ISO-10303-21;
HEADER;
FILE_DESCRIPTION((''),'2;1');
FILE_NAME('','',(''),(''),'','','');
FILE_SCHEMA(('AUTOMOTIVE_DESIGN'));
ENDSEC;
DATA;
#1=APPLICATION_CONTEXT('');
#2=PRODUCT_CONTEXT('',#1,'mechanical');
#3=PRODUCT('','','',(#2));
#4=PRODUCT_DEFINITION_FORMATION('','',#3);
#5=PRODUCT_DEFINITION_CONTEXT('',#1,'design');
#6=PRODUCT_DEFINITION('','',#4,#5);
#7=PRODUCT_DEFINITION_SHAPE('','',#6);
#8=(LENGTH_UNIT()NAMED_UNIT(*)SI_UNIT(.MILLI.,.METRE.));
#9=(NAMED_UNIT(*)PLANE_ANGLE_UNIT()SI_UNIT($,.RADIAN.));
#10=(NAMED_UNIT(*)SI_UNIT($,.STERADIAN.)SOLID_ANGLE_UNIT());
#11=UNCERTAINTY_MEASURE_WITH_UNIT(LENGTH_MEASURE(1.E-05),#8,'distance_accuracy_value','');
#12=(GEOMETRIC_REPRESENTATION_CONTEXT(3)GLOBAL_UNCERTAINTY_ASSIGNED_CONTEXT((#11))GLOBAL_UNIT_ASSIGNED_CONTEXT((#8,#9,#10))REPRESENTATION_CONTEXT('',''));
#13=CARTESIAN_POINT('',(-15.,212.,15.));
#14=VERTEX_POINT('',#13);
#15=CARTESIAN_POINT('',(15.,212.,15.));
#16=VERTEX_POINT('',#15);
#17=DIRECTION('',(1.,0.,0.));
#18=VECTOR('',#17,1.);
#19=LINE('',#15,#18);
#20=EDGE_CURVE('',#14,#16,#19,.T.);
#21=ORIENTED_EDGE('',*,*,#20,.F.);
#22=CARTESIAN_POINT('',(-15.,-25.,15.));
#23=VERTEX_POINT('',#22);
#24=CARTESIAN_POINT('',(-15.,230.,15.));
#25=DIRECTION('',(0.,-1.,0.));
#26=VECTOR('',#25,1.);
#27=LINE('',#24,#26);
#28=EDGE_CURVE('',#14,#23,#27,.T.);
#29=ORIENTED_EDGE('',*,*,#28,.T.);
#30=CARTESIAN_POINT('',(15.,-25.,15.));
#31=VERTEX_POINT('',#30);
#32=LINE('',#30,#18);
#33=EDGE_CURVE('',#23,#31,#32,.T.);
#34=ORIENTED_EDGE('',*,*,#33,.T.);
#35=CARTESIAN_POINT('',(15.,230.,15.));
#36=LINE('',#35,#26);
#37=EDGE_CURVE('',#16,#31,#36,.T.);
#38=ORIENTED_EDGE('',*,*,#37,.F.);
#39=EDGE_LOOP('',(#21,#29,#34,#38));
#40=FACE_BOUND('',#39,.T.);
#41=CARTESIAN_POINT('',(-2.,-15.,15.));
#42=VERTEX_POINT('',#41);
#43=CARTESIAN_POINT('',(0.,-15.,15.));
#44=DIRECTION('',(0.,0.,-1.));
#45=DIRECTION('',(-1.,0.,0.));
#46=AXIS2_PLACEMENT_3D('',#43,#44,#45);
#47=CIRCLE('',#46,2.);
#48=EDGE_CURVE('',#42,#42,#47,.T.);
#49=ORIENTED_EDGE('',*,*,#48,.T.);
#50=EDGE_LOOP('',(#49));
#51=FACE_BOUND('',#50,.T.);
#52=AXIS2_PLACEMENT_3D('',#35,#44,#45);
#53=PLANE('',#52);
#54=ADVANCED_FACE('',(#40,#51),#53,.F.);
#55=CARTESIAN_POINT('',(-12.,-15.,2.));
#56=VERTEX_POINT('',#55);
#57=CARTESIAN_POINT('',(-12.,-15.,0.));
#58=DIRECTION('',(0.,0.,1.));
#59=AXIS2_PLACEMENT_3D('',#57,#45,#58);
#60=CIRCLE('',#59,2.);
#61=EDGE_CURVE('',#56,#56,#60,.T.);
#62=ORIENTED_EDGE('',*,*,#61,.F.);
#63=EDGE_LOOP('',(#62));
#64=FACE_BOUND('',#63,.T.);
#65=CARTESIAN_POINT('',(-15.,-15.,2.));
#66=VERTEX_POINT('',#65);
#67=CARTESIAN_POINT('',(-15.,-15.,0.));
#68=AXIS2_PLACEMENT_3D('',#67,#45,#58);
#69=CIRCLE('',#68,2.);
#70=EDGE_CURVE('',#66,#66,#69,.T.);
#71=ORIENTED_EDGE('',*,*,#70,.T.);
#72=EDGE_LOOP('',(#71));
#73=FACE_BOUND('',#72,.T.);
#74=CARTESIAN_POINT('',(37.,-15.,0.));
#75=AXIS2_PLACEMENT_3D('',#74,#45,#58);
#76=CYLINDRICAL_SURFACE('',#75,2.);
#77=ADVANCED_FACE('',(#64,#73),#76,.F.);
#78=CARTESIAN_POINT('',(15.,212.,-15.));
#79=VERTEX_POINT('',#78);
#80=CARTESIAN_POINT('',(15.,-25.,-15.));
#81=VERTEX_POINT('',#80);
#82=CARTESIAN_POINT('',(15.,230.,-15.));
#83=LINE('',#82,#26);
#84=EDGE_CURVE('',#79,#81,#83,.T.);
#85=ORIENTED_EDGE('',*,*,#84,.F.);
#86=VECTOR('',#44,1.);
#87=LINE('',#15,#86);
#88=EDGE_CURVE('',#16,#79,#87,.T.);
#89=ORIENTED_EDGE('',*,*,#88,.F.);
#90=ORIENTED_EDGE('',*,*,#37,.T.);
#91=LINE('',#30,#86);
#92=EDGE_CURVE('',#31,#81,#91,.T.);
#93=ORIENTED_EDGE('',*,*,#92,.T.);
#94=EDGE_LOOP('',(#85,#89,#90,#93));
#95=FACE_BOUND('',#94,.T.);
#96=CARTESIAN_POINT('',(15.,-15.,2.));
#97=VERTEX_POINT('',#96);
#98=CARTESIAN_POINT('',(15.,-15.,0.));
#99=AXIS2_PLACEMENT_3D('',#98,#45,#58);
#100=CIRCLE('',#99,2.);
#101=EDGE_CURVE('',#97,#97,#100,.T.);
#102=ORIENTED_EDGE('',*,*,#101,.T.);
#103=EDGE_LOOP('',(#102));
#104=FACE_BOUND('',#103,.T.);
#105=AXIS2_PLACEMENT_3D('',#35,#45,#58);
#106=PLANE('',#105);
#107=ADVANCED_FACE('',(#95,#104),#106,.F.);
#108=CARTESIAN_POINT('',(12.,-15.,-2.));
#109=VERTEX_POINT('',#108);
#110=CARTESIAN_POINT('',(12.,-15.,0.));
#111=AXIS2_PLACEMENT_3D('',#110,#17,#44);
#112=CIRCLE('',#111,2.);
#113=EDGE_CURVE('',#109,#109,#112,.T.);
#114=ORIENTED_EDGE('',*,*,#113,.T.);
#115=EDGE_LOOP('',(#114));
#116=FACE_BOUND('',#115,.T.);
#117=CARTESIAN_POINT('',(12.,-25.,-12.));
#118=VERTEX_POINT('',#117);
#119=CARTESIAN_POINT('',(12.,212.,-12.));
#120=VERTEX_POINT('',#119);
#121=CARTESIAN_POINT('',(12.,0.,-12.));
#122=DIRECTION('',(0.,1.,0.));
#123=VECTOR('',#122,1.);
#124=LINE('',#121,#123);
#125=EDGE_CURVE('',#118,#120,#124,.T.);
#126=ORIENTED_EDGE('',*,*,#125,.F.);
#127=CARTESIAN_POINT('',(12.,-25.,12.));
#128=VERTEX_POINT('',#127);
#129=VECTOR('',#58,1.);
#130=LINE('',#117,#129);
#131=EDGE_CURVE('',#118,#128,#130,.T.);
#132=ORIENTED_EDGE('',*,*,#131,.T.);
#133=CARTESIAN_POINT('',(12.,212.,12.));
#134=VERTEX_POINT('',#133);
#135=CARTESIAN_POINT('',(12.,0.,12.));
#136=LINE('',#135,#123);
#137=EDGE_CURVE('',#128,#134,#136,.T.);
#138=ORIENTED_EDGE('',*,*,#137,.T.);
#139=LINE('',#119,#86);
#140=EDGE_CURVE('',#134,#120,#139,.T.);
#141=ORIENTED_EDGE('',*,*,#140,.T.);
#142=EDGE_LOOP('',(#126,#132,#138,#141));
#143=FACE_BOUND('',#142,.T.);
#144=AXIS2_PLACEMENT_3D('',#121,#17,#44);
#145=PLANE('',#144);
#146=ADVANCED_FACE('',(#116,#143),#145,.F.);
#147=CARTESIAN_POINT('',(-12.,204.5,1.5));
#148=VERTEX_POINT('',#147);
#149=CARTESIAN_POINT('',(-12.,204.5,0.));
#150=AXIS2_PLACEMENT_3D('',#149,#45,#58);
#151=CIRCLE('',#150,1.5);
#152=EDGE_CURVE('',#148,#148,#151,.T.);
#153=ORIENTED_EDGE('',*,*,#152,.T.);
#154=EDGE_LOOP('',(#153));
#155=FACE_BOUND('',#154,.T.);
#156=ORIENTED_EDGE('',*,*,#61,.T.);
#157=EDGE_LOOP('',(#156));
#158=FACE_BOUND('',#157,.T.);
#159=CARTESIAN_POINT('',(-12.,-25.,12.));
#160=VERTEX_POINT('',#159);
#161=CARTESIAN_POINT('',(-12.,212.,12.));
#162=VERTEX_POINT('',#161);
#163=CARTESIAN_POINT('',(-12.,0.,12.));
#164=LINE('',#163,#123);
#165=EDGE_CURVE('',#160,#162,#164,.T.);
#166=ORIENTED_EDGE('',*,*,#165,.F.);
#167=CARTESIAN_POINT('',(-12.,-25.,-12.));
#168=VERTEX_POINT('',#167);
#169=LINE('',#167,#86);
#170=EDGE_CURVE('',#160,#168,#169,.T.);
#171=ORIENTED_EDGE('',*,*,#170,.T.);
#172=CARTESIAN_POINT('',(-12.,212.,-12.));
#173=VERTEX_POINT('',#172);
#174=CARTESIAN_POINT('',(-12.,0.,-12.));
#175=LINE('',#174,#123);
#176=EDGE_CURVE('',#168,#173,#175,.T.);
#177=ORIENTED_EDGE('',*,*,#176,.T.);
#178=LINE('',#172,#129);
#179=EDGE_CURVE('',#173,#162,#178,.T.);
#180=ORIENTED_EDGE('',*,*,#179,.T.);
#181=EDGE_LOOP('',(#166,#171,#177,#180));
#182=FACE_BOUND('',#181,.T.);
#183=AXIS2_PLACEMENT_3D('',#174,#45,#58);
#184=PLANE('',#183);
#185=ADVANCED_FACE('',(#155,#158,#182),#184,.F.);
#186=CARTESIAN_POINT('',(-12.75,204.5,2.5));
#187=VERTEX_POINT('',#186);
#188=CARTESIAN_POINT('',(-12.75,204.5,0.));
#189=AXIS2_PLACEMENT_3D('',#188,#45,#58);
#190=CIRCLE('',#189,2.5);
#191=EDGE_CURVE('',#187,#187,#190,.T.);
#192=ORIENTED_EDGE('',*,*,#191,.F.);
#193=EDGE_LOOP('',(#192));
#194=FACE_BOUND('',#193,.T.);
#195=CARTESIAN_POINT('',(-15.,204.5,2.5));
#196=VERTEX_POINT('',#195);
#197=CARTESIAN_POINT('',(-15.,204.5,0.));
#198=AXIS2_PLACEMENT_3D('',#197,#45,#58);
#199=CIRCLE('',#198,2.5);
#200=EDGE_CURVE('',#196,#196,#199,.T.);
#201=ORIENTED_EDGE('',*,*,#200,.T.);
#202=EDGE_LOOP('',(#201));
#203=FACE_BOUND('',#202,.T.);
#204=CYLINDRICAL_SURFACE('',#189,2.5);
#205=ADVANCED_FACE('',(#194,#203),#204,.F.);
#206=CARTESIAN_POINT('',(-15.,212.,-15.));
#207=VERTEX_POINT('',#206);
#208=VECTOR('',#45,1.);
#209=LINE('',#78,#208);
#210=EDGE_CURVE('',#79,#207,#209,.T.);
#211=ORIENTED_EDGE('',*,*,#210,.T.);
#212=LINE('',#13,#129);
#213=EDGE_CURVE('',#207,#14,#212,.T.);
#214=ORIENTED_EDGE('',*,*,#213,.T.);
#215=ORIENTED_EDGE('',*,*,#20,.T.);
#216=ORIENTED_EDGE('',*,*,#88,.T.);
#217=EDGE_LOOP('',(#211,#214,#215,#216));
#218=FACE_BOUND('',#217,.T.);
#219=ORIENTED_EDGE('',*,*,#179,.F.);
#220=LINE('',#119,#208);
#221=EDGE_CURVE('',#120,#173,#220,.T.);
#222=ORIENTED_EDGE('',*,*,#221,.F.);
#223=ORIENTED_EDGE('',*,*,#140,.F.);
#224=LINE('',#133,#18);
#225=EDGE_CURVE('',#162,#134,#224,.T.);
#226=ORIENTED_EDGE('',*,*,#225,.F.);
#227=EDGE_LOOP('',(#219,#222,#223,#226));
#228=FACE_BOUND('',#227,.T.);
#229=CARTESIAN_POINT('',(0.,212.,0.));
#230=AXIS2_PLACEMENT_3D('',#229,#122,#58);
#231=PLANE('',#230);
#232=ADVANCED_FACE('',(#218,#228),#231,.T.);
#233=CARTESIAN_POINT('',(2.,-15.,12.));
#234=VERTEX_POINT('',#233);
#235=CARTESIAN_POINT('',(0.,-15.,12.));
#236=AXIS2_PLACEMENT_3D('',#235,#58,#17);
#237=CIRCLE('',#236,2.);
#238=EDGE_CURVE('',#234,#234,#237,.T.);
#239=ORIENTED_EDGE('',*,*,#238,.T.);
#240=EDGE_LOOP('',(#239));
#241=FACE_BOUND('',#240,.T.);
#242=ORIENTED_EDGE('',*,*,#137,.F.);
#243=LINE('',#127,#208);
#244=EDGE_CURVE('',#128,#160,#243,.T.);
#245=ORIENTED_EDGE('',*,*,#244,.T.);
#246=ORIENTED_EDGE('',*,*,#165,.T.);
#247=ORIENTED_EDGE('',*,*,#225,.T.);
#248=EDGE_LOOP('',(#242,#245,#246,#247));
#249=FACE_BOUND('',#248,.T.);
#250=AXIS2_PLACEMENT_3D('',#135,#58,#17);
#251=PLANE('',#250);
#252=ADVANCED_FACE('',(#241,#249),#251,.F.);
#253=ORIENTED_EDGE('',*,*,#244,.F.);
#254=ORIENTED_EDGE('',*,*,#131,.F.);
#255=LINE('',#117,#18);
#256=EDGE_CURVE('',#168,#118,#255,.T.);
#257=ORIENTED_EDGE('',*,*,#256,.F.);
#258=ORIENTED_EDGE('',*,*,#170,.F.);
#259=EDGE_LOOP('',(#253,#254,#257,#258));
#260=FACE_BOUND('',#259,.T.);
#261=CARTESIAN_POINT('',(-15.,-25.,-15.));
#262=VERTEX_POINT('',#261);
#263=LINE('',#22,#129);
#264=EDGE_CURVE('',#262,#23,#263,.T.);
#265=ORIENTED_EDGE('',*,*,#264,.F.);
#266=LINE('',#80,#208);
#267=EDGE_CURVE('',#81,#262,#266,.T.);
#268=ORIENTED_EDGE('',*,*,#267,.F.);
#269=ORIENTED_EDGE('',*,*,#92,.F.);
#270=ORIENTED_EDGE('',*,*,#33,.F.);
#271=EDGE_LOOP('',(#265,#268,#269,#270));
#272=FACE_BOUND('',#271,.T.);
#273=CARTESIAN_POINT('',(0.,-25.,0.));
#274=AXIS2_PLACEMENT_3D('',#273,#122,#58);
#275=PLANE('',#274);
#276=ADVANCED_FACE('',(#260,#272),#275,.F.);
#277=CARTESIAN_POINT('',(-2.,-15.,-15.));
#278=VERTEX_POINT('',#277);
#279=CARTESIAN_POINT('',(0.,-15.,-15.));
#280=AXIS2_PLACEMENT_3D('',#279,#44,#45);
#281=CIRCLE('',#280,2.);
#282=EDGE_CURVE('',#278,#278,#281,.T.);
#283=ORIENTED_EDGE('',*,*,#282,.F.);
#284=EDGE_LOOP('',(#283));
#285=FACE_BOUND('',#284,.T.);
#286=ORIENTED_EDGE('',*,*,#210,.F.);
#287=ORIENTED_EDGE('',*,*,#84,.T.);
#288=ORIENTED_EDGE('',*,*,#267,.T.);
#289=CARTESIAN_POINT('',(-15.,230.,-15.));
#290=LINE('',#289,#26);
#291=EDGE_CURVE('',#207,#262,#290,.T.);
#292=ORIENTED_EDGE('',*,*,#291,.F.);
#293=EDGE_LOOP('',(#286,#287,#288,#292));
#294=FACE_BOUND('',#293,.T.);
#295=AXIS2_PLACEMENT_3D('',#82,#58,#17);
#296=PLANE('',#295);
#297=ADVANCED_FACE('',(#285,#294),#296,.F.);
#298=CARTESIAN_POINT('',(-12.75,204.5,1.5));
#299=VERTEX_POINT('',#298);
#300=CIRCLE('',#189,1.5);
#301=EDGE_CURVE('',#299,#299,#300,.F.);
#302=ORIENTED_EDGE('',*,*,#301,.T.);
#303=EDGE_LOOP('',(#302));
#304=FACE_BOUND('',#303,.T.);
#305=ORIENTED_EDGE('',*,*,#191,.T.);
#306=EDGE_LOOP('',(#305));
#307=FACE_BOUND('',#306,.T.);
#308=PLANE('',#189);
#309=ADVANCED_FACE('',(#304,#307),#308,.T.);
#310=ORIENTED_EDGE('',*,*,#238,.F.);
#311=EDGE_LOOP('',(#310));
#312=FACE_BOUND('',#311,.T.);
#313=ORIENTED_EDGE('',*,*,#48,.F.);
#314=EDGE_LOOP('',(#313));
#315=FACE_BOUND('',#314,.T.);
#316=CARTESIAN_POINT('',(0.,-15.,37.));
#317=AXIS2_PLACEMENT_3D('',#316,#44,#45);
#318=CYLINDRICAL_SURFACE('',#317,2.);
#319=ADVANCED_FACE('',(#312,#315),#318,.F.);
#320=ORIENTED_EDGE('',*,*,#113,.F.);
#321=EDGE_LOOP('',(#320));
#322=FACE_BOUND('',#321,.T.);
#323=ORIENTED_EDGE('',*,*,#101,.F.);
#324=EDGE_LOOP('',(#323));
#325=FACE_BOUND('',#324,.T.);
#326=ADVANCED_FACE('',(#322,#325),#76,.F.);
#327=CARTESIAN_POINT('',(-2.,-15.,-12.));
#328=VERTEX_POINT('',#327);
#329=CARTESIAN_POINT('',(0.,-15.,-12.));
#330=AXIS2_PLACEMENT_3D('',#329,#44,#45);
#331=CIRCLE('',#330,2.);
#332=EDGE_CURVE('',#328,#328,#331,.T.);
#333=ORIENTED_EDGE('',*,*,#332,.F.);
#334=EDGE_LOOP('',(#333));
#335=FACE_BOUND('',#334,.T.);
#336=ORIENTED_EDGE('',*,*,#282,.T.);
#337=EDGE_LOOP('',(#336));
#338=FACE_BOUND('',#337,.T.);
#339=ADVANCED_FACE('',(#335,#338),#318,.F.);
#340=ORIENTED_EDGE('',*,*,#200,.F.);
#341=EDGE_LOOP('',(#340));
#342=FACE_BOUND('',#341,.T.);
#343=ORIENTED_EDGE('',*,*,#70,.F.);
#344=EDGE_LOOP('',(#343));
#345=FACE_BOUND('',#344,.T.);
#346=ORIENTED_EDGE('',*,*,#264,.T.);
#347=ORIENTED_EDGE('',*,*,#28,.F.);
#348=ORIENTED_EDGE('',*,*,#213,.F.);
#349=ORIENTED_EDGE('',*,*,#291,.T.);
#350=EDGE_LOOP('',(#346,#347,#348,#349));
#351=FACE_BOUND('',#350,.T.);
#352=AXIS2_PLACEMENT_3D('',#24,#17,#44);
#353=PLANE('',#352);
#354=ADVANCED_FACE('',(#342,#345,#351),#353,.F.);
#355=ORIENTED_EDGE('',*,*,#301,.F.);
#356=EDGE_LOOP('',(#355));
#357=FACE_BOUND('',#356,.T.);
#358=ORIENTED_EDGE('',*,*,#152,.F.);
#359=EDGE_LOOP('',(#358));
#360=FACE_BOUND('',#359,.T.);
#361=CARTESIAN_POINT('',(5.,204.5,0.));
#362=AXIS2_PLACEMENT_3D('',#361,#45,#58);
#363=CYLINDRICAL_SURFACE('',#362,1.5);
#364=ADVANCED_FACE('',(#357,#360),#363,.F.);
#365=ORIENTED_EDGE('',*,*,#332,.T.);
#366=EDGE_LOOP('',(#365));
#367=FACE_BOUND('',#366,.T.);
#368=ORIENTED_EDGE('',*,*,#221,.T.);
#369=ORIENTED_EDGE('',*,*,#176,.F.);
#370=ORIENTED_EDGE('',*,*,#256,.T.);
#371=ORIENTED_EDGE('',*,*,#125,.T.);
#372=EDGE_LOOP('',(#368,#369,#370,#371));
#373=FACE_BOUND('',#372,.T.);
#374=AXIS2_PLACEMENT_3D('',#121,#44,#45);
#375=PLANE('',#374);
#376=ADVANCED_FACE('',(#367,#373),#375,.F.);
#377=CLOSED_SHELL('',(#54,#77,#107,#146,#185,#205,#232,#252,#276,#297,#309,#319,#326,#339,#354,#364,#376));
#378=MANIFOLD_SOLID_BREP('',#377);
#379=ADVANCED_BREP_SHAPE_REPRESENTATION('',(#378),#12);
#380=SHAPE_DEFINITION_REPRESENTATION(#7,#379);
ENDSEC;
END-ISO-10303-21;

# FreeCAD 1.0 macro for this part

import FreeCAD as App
import Part
import Sketcher
from FreeCAD import Vector
Q = App.Units.Quantity

doc = App.newDocument("Part")
params = doc.addObject("Spreadsheet::Sheet", "Params")
for row, (alias, value) in enumerate([
    ("sketch1_width", "30 mm"),
    ("sketch1_width2", "26 mm"),
    ("pad1_length", "230 mm"),
    ("pocket1_length", "28 mm"),
    ("sketch3_diameter", "4 mm"),
    ("pocket2_length", "15 mm"),
    ("sketch4_diameter", "4 mm"),
    ("pocket3_length", "15 mm"),
    ("sketch5_width", "30 mm"),
    ("sketch5_width2", "26 mm"),
    ("pad2_length", "12 mm"),
    ("pad3_length", "2 mm"),
    ("pad4_length", "2 mm"),
    ("sketch8_diameter", "4 mm"),
    ("pocket4_length", "2 mm"),
    ("sketch9_diameter", "4 mm"),
    ("pocket5_length", "2 mm"),
    ("pocket6_length", "2 mm"),
    ("sketch11_diameter", "4 mm"),
    ("pad5_length", "2 mm"),
    ("sketch12_diameter", "4 mm"),
    ("pad6_length", "2 mm"),
    ("sketch13_diameter", "3 mm"),
    ("pocket7_length", "20 mm"),
    ("sketch14_width", "26 mm"),
    ("sketch14_width2", "24 mm"),
    ("pad7_length", "212 mm"),
    ("sketch15_diameter", "3 mm"),
    ("pocket8_length", "6 mm"),
    ("sketch16_diameter", "5 mm"),
    ("pocket9_length", "2.25 mm"),
    ("sketch17_width", "30 mm"),
    ("sketch17_width2", "24 mm"),
    ("pad8_length", "30 mm"),
    ("sketch18_diameter", "4 mm"),
    ("pad9_length", "2 mm"),
    ("sketch19_diameter", "4 mm"),
    ("pad10_length", "2 mm"),
    ("sketch20_diameter", "4 mm"),
    ("pocket10_length", "52 mm"),
    ("sketch21_diameter", "4 mm"),
    ("pocket11_length", "52 mm"),
    ("pocket12_length", "5 mm"),
], start=1):
    params.set(f"A{row}", alias)
    params.set(f"B{row}", "=" + value)
    params.setAlias(f"B{row}", alias)

body = doc.addObject("PartDesign::Body", "Body")

# Sketch on XZ plane
sketch1 = body.newObject("Sketcher::SketchObject", "Sketch")
sketch1.AttachmentSupport = (doc.getObject("XZ_Plane"), [""])
sketch1.MapMode = "FlatFace"
sketch1.addGeometry([
    Part.LineSegment(Vector(-15, -15, 0), Vector(-15, 15, 0)),  # 0
    Part.LineSegment(Vector(-15, 15, 0), Vector(15, 15, 0)),  # 1
    Part.LineSegment(Vector(15, 15, 0), Vector(15, -15, 0)),  # 2
    Part.LineSegment(Vector(15, -15, 0), Vector(-15, -15, 0)),  # 3
    Part.LineSegment(Vector(13, 13, 0), Vector(-13, 13, 0)),  # 4
    Part.LineSegment(Vector(-13, 13, 0), Vector(-13, -13, 0)),  # 5
    Part.LineSegment(Vector(-13, -13, 0), Vector(13, -13, 0)),  # 6
    Part.LineSegment(Vector(13, -13, 0), Vector(13, 13, 0)),  # 7
], False)
sketch1.addConstraint([
    Sketcher.Constraint("Coincident", 0, 2, 1, 1),
    Sketcher.Constraint("Coincident", 1, 2, 2, 1),
    Sketcher.Constraint("Coincident", 2, 2, 3, 1),
    Sketcher.Constraint("Coincident", 3, 2, 0, 1),
    Sketcher.Constraint("Coincident", 4, 2, 5, 1),
    Sketcher.Constraint("Coincident", 5, 2, 6, 1),
    Sketcher.Constraint("Coincident", 6, 2, 7, 1),
    Sketcher.Constraint("Coincident", 7, 2, 4, 1),
    Sketcher.Constraint("Vertical", 0),
    Sketcher.Constraint("Horizontal", 1),
    Sketcher.Constraint("Vertical", 2),
    Sketcher.Constraint("Horizontal", 3),
    Sketcher.Constraint("Horizontal", 4),
    Sketcher.Constraint("Vertical", 5),
    Sketcher.Constraint("Horizontal", 6),
    Sketcher.Constraint("Vertical", 7),
    Sketcher.Constraint("Symmetric", 0, 2, 2, 2, -1, 1),
    Sketcher.Constraint("Symmetric", 4, 2, 6, 2, -1, 1),
    Sketcher.Constraint("Equal", 3, 0),
    Sketcher.Constraint("Equal", 6, 5),
    Sketcher.Constraint("DistanceX", 1, 1, 1, 2, Q("30 mm")),
    Sketcher.Constraint("DistanceX", 4, 2, 4, 1, Q("26 mm")),
])
sketch1.setExpression("Constraints[20]", "Params.sketch1_width")
sketch1.setExpression("Constraints[21]", "Params.sketch1_width2")
pad1 = body.newObject("PartDesign::Pad", "Pad")
pad1.Profile = sketch1
pad1.setExpression("Length", "Params.pad1_length")
pad1.Reversed = True

# Sketch on XZ plane
sketch2 = body.newObject("Sketcher::SketchObject", "Sketch001")
sketch2.AttachmentSupport = (doc.getObject("XZ_Plane"), [""])
sketch2.MapMode = "FlatFace"
sketch2.AttachmentOffset = App.Placement(Vector(0, 0, -230), App.Rotation())
sketch2.addGeometry([
    Part.LineSegment(Vector(-22, -44, 0), Vector(-22, 38, 0)),
    Part.LineSegment(Vector(-22, 38, 0), Vector(40, 38, 0)),
    Part.LineSegment(Vector(40, 38, 0), Vector(40, -44, 0)),
    Part.LineSegment(Vector(40, -44, 0), Vector(-22, -44, 0)),
], False)
sketch2.addConstraint([
    Sketcher.Constraint("Coincident", 0, 2, 1, 1),
    Sketcher.Constraint("Coincident", 1, 2, 2, 1),
    Sketcher.Constraint("Coincident", 2, 2, 3, 1),
    Sketcher.Constraint("Coincident", 3, 2, 0, 1),
    Sketcher.Constraint("Vertical", 0),
    Sketcher.Constraint("Horizontal", 1),
    Sketcher.Constraint("Vertical", 2),
    Sketcher.Constraint("Horizontal", 3),
    Sketcher.Constraint("DistanceX", 1, 1, 1, 2, Q("62.135011 mm")),
    Sketcher.Constraint("DistanceY", 0, 1, 0, 2, Q("81.929383 mm")),
    Sketcher.Constraint("DistanceY", -1, 1, 0, 2, Q("38.260942 mm")),
    Sketcher.Constraint("DistanceX", 0, 2, -1, 1, Q("21.918876 mm")),
])
pocket1 = body.newObject("PartDesign::Pocket", "Pocket")
pocket1.Profile = sketch2
pocket1.setExpression("Length", "Params.pocket1_length")
pocket1.Reversed = True

# Sketch on XY plane
sketch3 = body.newObject("Sketcher::SketchObject", "Sketch002")
sketch3.AttachmentSupport = (doc.getObject("XY_Plane"), [""])
sketch3.MapMode = "FlatFace"
sketch3.AttachmentOffset = App.Placement(Vector(0, 0, 15), App.Rotation())
sketch3.addGeometry([
    Part.Circle(Vector(3, 169, 0), Vector(0, 0, 1), 2),
    Part.Circle(Vector(-3, 191, 0), Vector(0, 0, 1), 2),
    Part.Circle(Vector(-3, 33, 0), Vector(0, 0, 1), 2),
    Part.Circle(Vector(3, 11, 0), Vector(0, 0, 1), 2),
], False)
sketch3.addConstraint([
    Sketcher.Constraint("Equal", 0, 1),
    Sketcher.Constraint("Equal", 1, 2),
    Sketcher.Constraint("Equal", 2, 3),
    Sketcher.Constraint("Vertical", 1, 3, 2, 3),
    Sketcher.Constraint("Vertical", 0, 3, 3, 3),
    Sketcher.Constraint("Diameter", 0, Q("4 mm")),
    Sketcher.Constraint("DistanceX", -1, 1, 0, 3, Q("3 mm")),
    Sketcher.Constraint("DistanceY", -1, 1, 0, 3, Q("169 mm")),
    Sketcher.Constraint("DistanceX", 1, 3, -1, 1, Q("3 mm")),
    Sketcher.Constraint("DistanceY", -1, 1, 1, 3, Q("191 mm")),
    Sketcher.Constraint("DistanceY", -1, 1, 2, 3, Q("33 mm")),
    Sketcher.Constraint("DistanceY", -1, 1, 3, 3, Q("11 mm")),
])
sketch3.setExpression("Constraints[5]", "Params.sketch3_diameter")
pocket2 = body.newObject("PartDesign::Pocket", "Pocket001")
pocket2.Profile = sketch3
pocket2.setExpression("Length", "Params.pocket2_length")

# Sketch on XY plane
sketch4 = body.newObject("Sketcher::SketchObject", "Sketch003")
sketch4.AttachmentSupport = (doc.getObject("XY_Plane"), [""])
sketch4.MapMode = "FlatFace"
sketch4.AttachmentOffset = App.Placement(Vector(0, 0, -15), App.Rotation())
sketch4.addGeometry([
    Part.Circle(Vector(3, 191, 0), Vector(0, 0, 1), 2),
    Part.Circle(Vector(-3, 169, 0), Vector(0, 0, 1), 2),
    Part.Circle(Vector(-3, 11, 0), Vector(0, 0, 1), 2),
    Part.Circle(Vector(3, 33, 0), Vector(0, 0, 1), 2),
], False)
sketch4.addConstraint([
    Sketcher.Constraint("Equal", 0, 1),
    Sketcher.Constraint("Equal", 1, 2),
    Sketcher.Constraint("Equal", 2, 3),
    Sketcher.Constraint("Vertical", 1, 3, 2, 3),
    Sketcher.Constraint("Vertical", 0, 3, 3, 3),
    Sketcher.Constraint("Diameter", 0, Q("4 mm")),
    Sketcher.Constraint("DistanceX", -1, 1, 0, 3, Q("3 mm")),
    Sketcher.Constraint("DistanceY", -1, 1, 0, 3, Q("191 mm")),
    Sketcher.Constraint("DistanceX", 1, 3, -1, 1, Q("3 mm")),
    Sketcher.Constraint("DistanceY", -1, 1, 1, 3, Q("169 mm")),
    Sketcher.Constraint("DistanceY", -1, 1, 2, 3, Q("11 mm")),
    Sketcher.Constraint("DistanceY", -1, 1, 3, 3, Q("33 mm")),
])
sketch4.setExpression("Constraints[5]", "Params.sketch4_diameter")
pocket3 = body.newObject("PartDesign::Pocket", "Pocket002")
pocket3.Profile = sketch4
pocket3.setExpression("Length", "Params.pocket3_length")
pocket3.Reversed = True

# Sketch on XZ plane
sketch5 = body.newObject("Sketcher::SketchObject", "Sketch004")
sketch5.AttachmentSupport = (doc.getObject("XZ_Plane"), [""])
sketch5.MapMode = "FlatFace"
sketch5.AttachmentOffset = App.Placement(Vector(0, 0, -202), App.Rotation())
sketch5.addGeometry([
    Part.LineSegment(Vector(-15, -15, 0), Vector(-15, 15, 0)),  # 0
    Part.LineSegment(Vector(-15, 15, 0), Vector(15, 15, 0)),  # 1
    Part.LineSegment(Vector(15, 15, 0), Vector(15, -15, 0)),  # 2
    Part.LineSegment(Vector(15, -15, 0), Vector(-15, -15, 0)),  # 3
    Part.LineSegment(Vector(13, 13, 0), Vector(-13, 13, 0)),  # 4
    Part.LineSegment(Vector(-13, 13, 0), Vector(-13, -13, 0)),  # 5
    Part.LineSegment(Vector(-13, -13, 0), Vector(13, -13, 0)),  # 6
    Part.LineSegment(Vector(13, -13, 0), Vector(13, 13, 0)),  # 7
], False)
sketch5.addConstraint([
    Sketcher.Constraint("Coincident", 0, 2, 1, 1),
    Sketcher.Constraint("Coincident", 1, 2, 2, 1),
    Sketcher.Constraint("Coincident", 2, 2, 3, 1),
    Sketcher.Constraint("Coincident", 3, 2, 0, 1),
    Sketcher.Constraint("Coincident", 4, 2, 5, 1),
    Sketcher.Constraint("Coincident", 5, 2, 6, 1),
    Sketcher.Constraint("Coincident", 6, 2, 7, 1),
    Sketcher.Constraint("Coincident", 7, 2, 4, 1),
    Sketcher.Constraint("Vertical", 0),
    Sketcher.Constraint("Horizontal", 1),
    Sketcher.Constraint("Vertical", 2),
    Sketcher.Constraint("Horizontal", 3),
    Sketcher.Constraint("Horizontal", 4),
    Sketcher.Constraint("Vertical", 5),
    Sketcher.Constraint("Horizontal", 6),
    Sketcher.Constraint("Vertical", 7),
    Sketcher.Constraint("Symmetric", 0, 2, 2, 2, -1, 1),
    Sketcher.Constraint("Symmetric", 4, 2, 6, 2, -1, 1),
    Sketcher.Constraint("Equal", 3, 0),
    Sketcher.Constraint("Equal", 6, 5),
    Sketcher.Constraint("DistanceX", 1, 1, 1, 2, Q("30 mm")),
    Sketcher.Constraint("DistanceX", 4, 2, 4, 1, Q("26 mm")),
])
sketch5.setExpression("Constraints[20]", "Params.sketch5_width")
sketch5.setExpression("Constraints[21]", "Params.sketch5_width2")
pad2 = body.newObject("PartDesign::Pad", "Pad001")
pad2.Profile = sketch5
pad2.setExpression("Length", "Params.pad2_length")
pad2.Reversed = True

# Sketch on XY plane
sketch6 = body.newObject("Sketcher::SketchObject", "Sketch005")
sketch6.AttachmentSupport = (doc.getObject("XY_Plane"), [""])
sketch6.MapMode = "FlatFace"
sketch6.AttachmentOffset = App.Placement(Vector(0, 0, 15), App.Rotation())
sketch6.addGeometry([
    Part.LineSegment(Vector(-10, 201, 0), Vector(-10, 163, 0)),
    Part.LineSegment(Vector(-10, 163, 0), Vector(8, 163, 0)),
    Part.LineSegment(Vector(8, 163, 0), Vector(8, 201, 0)),
    Part.LineSegment(Vector(8, 201, 0), Vector(-10, 201, 0)),
], False)
sketch6.addConstraint([
    Sketcher.Constraint("Coincident", 0, 2, 1, 1),
    Sketcher.Constraint("Coincident", 1, 2, 2, 1),
    Sketcher.Constraint("Coincident", 2, 2, 3, 1),
    Sketcher.Constraint("Coincident", 3, 2, 0, 1),
    Sketcher.Constraint("Vertical", 0),
    Sketcher.Constraint("Horizontal", 1),
    Sketcher.Constraint("Vertical", 2),
    Sketcher.Constraint("Horizontal", 3),
    Sketcher.Constraint("DistanceY", 0, 2, 0, 1, Q("38.019552 mm")),
    Sketcher.Constraint("DistanceX", 1, 1, 1, 2, Q("18.119957 mm")),
    Sketcher.Constraint("DistanceX", -1, 1, 1, 2, Q("8.105442 mm")),
    Sketcher.Constraint("DistanceY", -1, 1, 2, 2, Q("201.46646 mm")),
])
pad3 = body.newObject("PartDesign::Pad", "Pad002")
pad3.Profile = sketch6
pad3.setExpression("Length", "Params.pad3_length")
pad3.Reversed = True

# Sketch on XY plane
sketch7 = body.newObject("Sketcher::SketchObject", "Sketch006")
sketch7.AttachmentSupport = (doc.getObject("XY_Plane"), [""])
sketch7.MapMode = "FlatFace"
sketch7.AttachmentOffset = App.Placement(Vector(0, 0, -15), App.Rotation())
sketch7.addGeometry([
    Part.LineSegment(Vector(8, 196, 0), Vector(8, 161, 0)),
    Part.LineSegment(Vector(8, 161, 0), Vector(-11, 161, 0)),
    Part.LineSegment(Vector(-11, 161, 0), Vector(-11, 196, 0)),
    Part.LineSegment(Vector(-11, 196, 0), Vector(8, 196, 0)),
], False)
sketch7.addConstraint([
    Sketcher.Constraint("Coincident", 0, 2, 1, 1),
    Sketcher.Constraint("Coincident", 1, 2, 2, 1),
    Sketcher.Constraint("Coincident", 2, 2, 3, 1),
    Sketcher.Constraint("Coincident", 3, 2, 0, 1),
    Sketcher.Constraint("Vertical", 0),
    Sketcher.Constraint("Horizontal", 1),
    Sketcher.Constraint("Vertical", 2),
    Sketcher.Constraint("Horizontal", 3),
    Sketcher.Constraint("DistanceX", 1, 2, 1, 1, Q("19.256573 mm")),
    Sketcher.Constraint("DistanceY", 0, 2, 0, 1, Q("35.130037 mm")),
    Sketcher.Constraint("DistanceY", -1, 1, 0, 2, Q("161.345591 mm")),
    Sketcher.Constraint("DistanceX", 1, 2, -1, 1, Q("11.22482 mm")),
])
pad4 = body.newObject("PartDesign::Pad", "Pad003")
pad4.Profile = sketch7
pad4.setExpression("Length", "Params.pad4_length")

# Sketch on XY plane
sketch8 = body.newObject("Sketcher::SketchObject", "Sketch007")
sketch8.AttachmentSupport = (doc.getObject("XY_Plane"), [""])
sketch8.MapMode = "FlatFace"
sketch8.AttachmentOffset = App.Placement(Vector(0, 0, 15), App.Rotation())
sketch8.addGeometry([
    Part.Circle(Vector(-3, 203, 0), Vector(0, 0, 1), 2),
    Part.Circle(Vector(3, 181, 0), Vector(0, 0, 1), 2),
], False)
sketch8.addConstraint([
    Sketcher.Constraint("Equal", 0, 1),
    Sketcher.Constraint("Diameter", 0, Q("4 mm")),
    Sketcher.Constraint("DistanceX", 0, 3, -1, 1, Q("3 mm")),
    Sketcher.Constraint("DistanceY", -1, 1, 0, 3, Q("203 mm")),
    Sketcher.Constraint("DistanceX", -1, 1, 1, 3, Q("3 mm")),
    Sketcher.Constraint("DistanceY", -1, 1, 1, 3, Q("181 mm")),
])
sketch8.setExpression("Constraints[1]", "Params.sketch8_diameter")
pocket4 = body.newObject("PartDesign::Pocket", "Pocket003")
pocket4.Profile = sketch8
pocket4.setExpression("Length", "Params.pocket4_length")

# Sketch on XY plane
sketch9 = body.newObject("Sketcher::SketchObject", "Sketch008")
sketch9.AttachmentSupport = (doc.getObject("XY_Plane"), [""])
sketch9.MapMode = "FlatFace"
sketch9.AttachmentOffset = App.Placement(Vector(0, 0, -15), App.Rotation())
sketch9.addGeometry([
    Part.Circle(Vector(3, 203, 0), Vector(0, 0, 1), 2),
    Part.Circle(Vector(-3, 181, 0), Vector(0, 0, 1), 2),
], False)
sketch9.addConstraint([
    Sketcher.Constraint("Equal", 0, 1),
    Sketcher.Constraint("Diameter", 0, Q("4 mm")),
    Sketcher.Constraint("DistanceX", -1, 1, 0, 3, Q("3 mm")),
    Sketcher.Constraint("DistanceY", -1, 1, 0, 3, Q("203 mm")),
    Sketcher.Constraint("DistanceX", 1, 3, -1, 1, Q("3 mm")),
    Sketcher.Constraint("DistanceY", -1, 1, 1, 3, Q("181 mm")),
])
sketch9.setExpression("Constraints[1]", "Params.sketch9_diameter")
pocket5 = body.newObject("PartDesign::Pocket", "Pocket004")
pocket5.Profile = sketch9
pocket5.setExpression("Length", "Params.pocket5_length")
pocket5.Reversed = True

# Sketch on XZ plane
sketch10 = body.newObject("Sketcher::SketchObject", "Sketch009")
sketch10.AttachmentSupport = (doc.getObject("XZ_Plane"), [""])
sketch10.MapMode = "FlatFace"
sketch10.AttachmentOffset = App.Placement(Vector(0, 0, -214), App.Rotation())
sketch10.addGeometry([
    Part.LineSegment(Vector(-41, -21, 0), Vector(-41, 22, 0)),
    Part.LineSegment(Vector(-41, 22, 0), Vector(28, 22, 0)),
    Part.LineSegment(Vector(28, 22, 0), Vector(28, -21, 0)),
    Part.LineSegment(Vector(28, -21, 0), Vector(-41, -21, 0)),
], False)
sketch10.addConstraint([
    Sketcher.Constraint("Coincident", 0, 2, 1, 1),
    Sketcher.Constraint("Coincident", 1, 2, 2, 1),
    Sketcher.Constraint("Coincident", 2, 2, 3, 1),
    Sketcher.Constraint("Coincident", 3, 2, 0, 1),
    Sketcher.Constraint("Vertical", 0),
    Sketcher.Constraint("Horizontal", 1),
    Sketcher.Constraint("Vertical", 2),
    Sketcher.Constraint("Horizontal", 3),
    Sketcher.Constraint("DistanceX", 1, 1, 1, 2, Q("68.798738 mm")),
    Sketcher.Constraint("DistanceY", 0, 1, 0, 2, Q("42.927166 mm")),
    Sketcher.Constraint("DistanceX", -1, 1, 1, 2, Q("28.25488 mm")),
    Sketcher.Constraint("DistanceY", -1, 1, 0, 2, Q("21.718413 mm")),
])
pocket6 = body.newObject("PartDesign::Pocket", "Pocket005")
pocket6.Profile = sketch10
pocket6.setExpression("Length", "Params.pocket6_length")
pocket6.Reversed = True

# Sketch on XY plane
sketch11 = body.newObject("Sketcher::SketchObject", "Sketch010")
sketch11.AttachmentSupport = (doc.getObject("XY_Plane"), [""])
sketch11.MapMode = "FlatFace"
sketch11.AttachmentOffset = App.Placement(Vector(0, 0, -15), App.Rotation())
sketch11.addGeometry([
    Part.Circle(Vector(-3, 181, 0), Vector(0, 0, 1), 2),
    Part.Circle(Vector(3, 203, 0), Vector(0, 0, 1), 2),
], False)
sketch11.addConstraint([
    Sketcher.Constraint("Equal", 0, 1),
    Sketcher.Constraint("Diameter", 0, Q("4 mm")),
    Sketcher.Constraint("DistanceX", 0, 3, -1, 1, Q("3 mm")),
    Sketcher.Constraint("DistanceY", -1, 1, 0, 3, Q("181 mm")),
    Sketcher.Constraint("DistanceX", -1, 1, 1, 3, Q("3 mm")),
    Sketcher.Constraint("DistanceY", -1, 1, 1, 3, Q("203 mm")),
])
sketch11.setExpression("Constraints[1]", "Params.sketch11_diameter")
pad5 = body.newObject("PartDesign::Pad", "Pad004")
pad5.Profile = sketch11
pad5.setExpression("Length", "Params.pad5_length")

# Sketch on XY plane
sketch12 = body.newObject("Sketcher::SketchObject", "Sketch011")
sketch12.AttachmentSupport = (doc.getObject("XY_Plane"), [""])
sketch12.MapMode = "FlatFace"
sketch12.AttachmentOffset = App.Placement(Vector(0, 0, 15), App.Rotation())
sketch12.addGeometry([
    Part.Circle(Vector(-3, 203, 0), Vector(0, 0, 1), 2),
    Part.Circle(Vector(3, 181, 0), Vector(0, 0, 1), 2),
], False)
sketch12.addConstraint([
    Sketcher.Constraint("Equal", 0, 1),
    Sketcher.Constraint("Diameter", 0, Q("4 mm")),
    Sketcher.Constraint("DistanceX", 0, 3, -1, 1, Q("3 mm")),
    Sketcher.Constraint("DistanceY", -1, 1, 0, 3, Q("203 mm")),
    Sketcher.Constraint("DistanceX", -1, 1, 1, 3, Q("3 mm")),
    Sketcher.Constraint("DistanceY", -1, 1, 1, 3, Q("181 mm")),
])
sketch12.setExpression("Constraints[1]", "Params.sketch12_diameter")
pad6 = body.newObject("PartDesign::Pad", "Pad005")
pad6.Profile = sketch12
pad6.setExpression("Length", "Params.pad6_length")
pad6.Reversed = True

# Sketch on YZ plane
sketch13 = body.newObject("Sketcher::SketchObject", "Sketch012")
sketch13.AttachmentSupport = (doc.getObject("YZ_Plane"), [""])
sketch13.MapMode = "FlatFace"
sketch13.AttachmentOffset = App.Placement(Vector(0, 0, -15), App.Rotation())
sketch13.addGeometry(Part.Circle(Vector(204.5, 0, 0), Vector(0, 0, 1), 1.5), False)
sketch13.addConstraint([
    Sketcher.Constraint("PointOnObject", 0, 3, -1),
    Sketcher.Constraint("Diameter", 0, Q("3 mm")),
    Sketcher.Constraint("DistanceX", -1, 1, 0, 3, Q("204.5 mm")),
])
sketch13.setExpression("Constraints[1]", "Params.sketch13_diameter")
pocket7 = body.newObject("PartDesign::Pocket", "Pocket006")
pocket7.Profile = sketch13
pocket7.setExpression("Length", "Params.pocket7_length")
pocket7.Reversed = True

# Sketch on XZ plane
sketch14 = body.newObject("Sketcher::SketchObject", "Sketch013")
sketch14.AttachmentSupport = (doc.getObject("XZ_Plane"), [""])
sketch14.MapMode = "FlatFace"
sketch14.AttachmentOffset = App.Placement(Vector(0, 0, -212), App.Rotation())
sketch14.addGeometry([
    Part.LineSegment(Vector(-13, -13, 0), Vector(-13, 13, 0)),  # 0
    Part.LineSegment(Vector(-13, 13, 0), Vector(13, 13, 0)),  # 1
    Part.LineSegment(Vector(13, 13, 0), Vector(13, -13, 0)),  # 2
    Part.LineSegment(Vector(13, -13, 0), Vector(-13, -13, 0)),  # 3
    Part.LineSegment(Vector(12, 12, 0), Vector(-12, 12, 0)),  # 4
    Part.LineSegment(Vector(-12, 12, 0), Vector(-12, -12, 0)),  # 5
    Part.LineSegment(Vector(-12, -12, 0), Vector(12, -12, 0)),  # 6
    Part.LineSegment(Vector(12, -12, 0), Vector(12, 12, 0)),  # 7
], False)
sketch14.addConstraint([
    Sketcher.Constraint("Coincident", 0, 2, 1, 1),
    Sketcher.Constraint("Coincident", 1, 2, 2, 1),
    Sketcher.Constraint("Coincident", 2, 2, 3, 1),
    Sketcher.Constraint("Coincident", 3, 2, 0, 1),
    Sketcher.Constraint("Coincident", 4, 2, 5, 1),
    Sketcher.Constraint("Coincident", 5, 2, 6, 1),
    Sketcher.Constraint("Coincident", 6, 2, 7, 1),
    Sketcher.Constraint("Coincident", 7, 2, 4, 1),
    Sketcher.Constraint("Vertical", 0),
    Sketcher.Constraint("Horizontal", 1),
    Sketcher.Constraint("Vertical", 2),
    Sketcher.Constraint("Horizontal", 3),
    Sketcher.Constraint("Horizontal", 4),
    Sketcher.Constraint("Vertical", 5),
    Sketcher.Constraint("Horizontal", 6),
    Sketcher.Constraint("Vertical", 7),
    Sketcher.Constraint("Symmetric", 0, 2, 2, 2, -1, 1),
    Sketcher.Constraint("Symmetric", 4, 2, 6, 2, -1, 1),
    Sketcher.Constraint("Equal", 3, 0),
    Sketcher.Constraint("Equal", 6, 5),
    Sketcher.Constraint("DistanceX", 1, 1, 1, 2, Q("26 mm")),
    Sketcher.Constraint("DistanceX", 4, 2, 4, 1, Q("24 mm")),
])
sketch14.setExpression("Constraints[20]", "Params.sketch14_width")
sketch14.setExpression("Constraints[21]", "Params.sketch14_width2")
pad7 = body.newObject("PartDesign::Pad", "Pad006")
pad7.Profile = sketch14
pad7.setExpression("Length", "Params.pad7_length")

# Sketch on YZ plane
sketch15 = body.newObject("Sketcher::SketchObject", "Sketch014")
sketch15.AttachmentSupport = (doc.getObject("YZ_Plane"), [""])
sketch15.MapMode = "FlatFace"
sketch15.AttachmentOffset = App.Placement(Vector(0, 0, -13), App.Rotation())
sketch15.addGeometry(Part.Circle(Vector(204.5, 0, 0), Vector(0, 0, 1), 1.5), False)
sketch15.addConstraint([
    Sketcher.Constraint("PointOnObject", 0, 3, -1),
    Sketcher.Constraint("Diameter", 0, Q("3 mm")),
    Sketcher.Constraint("DistanceX", -1, 1, 0, 3, Q("204.5 mm")),
])
sketch15.setExpression("Constraints[1]", "Params.sketch15_diameter")
pocket8 = body.newObject("PartDesign::Pocket", "Pocket007")
pocket8.Profile = sketch15
pocket8.setExpression("Length", "Params.pocket8_length")
pocket8.Reversed = True

# Sketch on YZ plane
sketch16 = body.newObject("Sketcher::SketchObject", "Sketch015")
sketch16.AttachmentSupport = (doc.getObject("YZ_Plane"), [""])
sketch16.MapMode = "FlatFace"
sketch16.AttachmentOffset = App.Placement(Vector(0, 0, -15), App.Rotation())
sketch16.addGeometry(Part.Circle(Vector(204.5, 0, 0), Vector(0, 0, 1), 2.5), False)
sketch16.addConstraint([
    Sketcher.Constraint("PointOnObject", 0, 3, -1),
    Sketcher.Constraint("Diameter", 0, Q("5 mm")),
    Sketcher.Constraint("DistanceX", -1, 1, 0, 3, Q("204.5 mm")),
])
sketch16.setExpression("Constraints[1]", "Params.sketch16_diameter")
pocket9 = body.newObject("PartDesign::Pocket", "Pocket008")
pocket9.Profile = sketch16
pocket9.setExpression("Length", "Params.pocket9_length")
pocket9.Reversed = True

# Sketch on XZ plane
sketch17 = body.newObject("Sketcher::SketchObject", "Sketch016")
sketch17.AttachmentSupport = (doc.getObject("XZ_Plane"), [""])
sketch17.MapMode = "FlatFace"
sketch17.addGeometry([
    Part.LineSegment(Vector(-15, 15, 0), Vector(-15, -15, 0)),  # 0
    Part.LineSegment(Vector(-15, -15, 0), Vector(15, -15, 0)),  # 1
    Part.LineSegment(Vector(15, -15, 0), Vector(15, 15, 0)),  # 2
    Part.LineSegment(Vector(15, 15, 0), Vector(-15, 15, 0)),  # 3
    Part.LineSegment(Vector(12, -12, 0), Vector(-12, -12, 0)),  # 4
    Part.LineSegment(Vector(-12, -12, 0), Vector(-12, 12, 0)),  # 5
    Part.LineSegment(Vector(-12, 12, 0), Vector(12, 12, 0)),  # 6
    Part.LineSegment(Vector(12, 12, 0), Vector(12, -12, 0)),  # 7
], False)
sketch17.addConstraint([
    Sketcher.Constraint("Coincident", 0, 2, 1, 1),
    Sketcher.Constraint("Coincident", 1, 2, 2, 1),
    Sketcher.Constraint("Coincident", 2, 2, 3, 1),
    Sketcher.Constraint("Coincident", 3, 2, 0, 1),
    Sketcher.Constraint("Coincident", 4, 2, 5, 1),
    Sketcher.Constraint("Coincident", 5, 2, 6, 1),
    Sketcher.Constraint("Coincident", 6, 2, 7, 1),
    Sketcher.Constraint("Coincident", 7, 2, 4, 1),
    Sketcher.Constraint("Vertical", 0),
    Sketcher.Constraint("Horizontal", 1),
    Sketcher.Constraint("Vertical", 2),
    Sketcher.Constraint("Horizontal", 3),
    Sketcher.Constraint("Horizontal", 4),
    Sketcher.Constraint("Vertical", 5),
    Sketcher.Constraint("Horizontal", 6),
    Sketcher.Constraint("Vertical", 7),
    Sketcher.Constraint("Symmetric", 0, 2, 2, 2, -1, 1),
    Sketcher.Constraint("Symmetric", 4, 2, 6, 2, -1, 1),
    Sketcher.Constraint("Equal", 3, 0),
    Sketcher.Constraint("Equal", 6, 5),
    Sketcher.Constraint("DistanceX", 1, 1, 1, 2, Q("30 mm")),
    Sketcher.Constraint("DistanceX", 4, 2, 4, 1, Q("24 mm")),
])
sketch17.setExpression("Constraints[20]", "Params.sketch17_width")
sketch17.setExpression("Constraints[21]", "Params.sketch17_width2")
pad8 = body.newObject("PartDesign::Pad", "Pad007")
pad8.Profile = sketch17
pad8.setExpression("Length", "Params.pad8_length")

# Sketch on XY plane
sketch18 = body.newObject("Sketcher::SketchObject", "Sketch017")
sketch18.AttachmentSupport = (doc.getObject("XY_Plane"), [""])
sketch18.MapMode = "FlatFace"
sketch18.AttachmentOffset = App.Placement(Vector(0, 0, 15), App.Rotation())
sketch18.addGeometry([
    Part.Circle(Vector(3, 11, 0), Vector(0, 0, 1), 2),
    Part.Circle(Vector(-3, 33, 0), Vector(0, 0, 1), 2),
], False)
sketch18.addConstraint([
    Sketcher.Constraint("Equal", 0, 1),
    Sketcher.Constraint("Diameter", 0, Q("4 mm")),
    Sketcher.Constraint("DistanceX", -1, 1, 0, 3, Q("3 mm")),
    Sketcher.Constraint("DistanceY", -1, 1, 0, 3, Q("11 mm")),
    Sketcher.Constraint("DistanceX", 1, 3, -1, 1, Q("3 mm")),
    Sketcher.Constraint("DistanceY", -1, 1, 1, 3, Q("33 mm")),
])
sketch18.setExpression("Constraints[1]", "Params.sketch18_diameter")
pad9 = body.newObject("PartDesign::Pad", "Pad008")
pad9.Profile = sketch18
pad9.setExpression("Length", "Params.pad9_length")
pad9.Reversed = True

# Sketch on XY plane
sketch19 = body.newObject("Sketcher::SketchObject", "Sketch018")
sketch19.AttachmentSupport = (doc.getObject("XY_Plane"), [""])
sketch19.MapMode = "FlatFace"
sketch19.AttachmentOffset = App.Placement(Vector(0, 0, -15), App.Rotation())
sketch19.addGeometry([
    Part.Circle(Vector(-3, 11, 0), Vector(0, 0, 1), 2),
    Part.Circle(Vector(3, 33, 0), Vector(0, 0, 1), 2),
], False)
sketch19.addConstraint([
    Sketcher.Constraint("Equal", 0, 1),
    Sketcher.Constraint("Diameter", 0, Q("4 mm")),
    Sketcher.Constraint("DistanceX", 0, 3, -1, 1, Q("3 mm")),
    Sketcher.Constraint("DistanceY", -1, 1, 0, 3, Q("11 mm")),
    Sketcher.Constraint("DistanceX", -1, 1, 1, 3, Q("3 mm")),
    Sketcher.Constraint("DistanceY", -1, 1, 1, 3, Q("33 mm")),
])
sketch19.setExpression("Constraints[1]", "Params.sketch19_diameter")
pad10 = body.newObject("PartDesign::Pad", "Pad009")
pad10.Profile = sketch19
pad10.setExpression("Length", "Params.pad10_length")

# Sketch on YZ plane
sketch20 = body.newObject("Sketcher::SketchObject", "Sketch019")
sketch20.AttachmentSupport = (doc.getObject("YZ_Plane"), [""])
sketch20.MapMode = "FlatFace"
sketch20.AttachmentOffset = App.Placement(Vector(0, 0, -15), App.Rotation())
sketch20.addGeometry(Part.Circle(Vector(-15, 0, 0), Vector(0, 0, 1), 2), False)
sketch20.addConstraint([
    Sketcher.Constraint("PointOnObject", 0, 3, -1),
    Sketcher.Constraint("Diameter", 0, Q("4 mm")),
    Sketcher.Constraint("DistanceX", 0, 3, -1, 1, Q("15 mm")),
])
sketch20.setExpression("Constraints[1]", "Params.sketch20_diameter")
pocket10 = body.newObject("PartDesign::Pocket", "Pocket009")
pocket10.Profile = sketch20
pocket10.setExpression("Length", "Params.pocket10_length")
pocket10.Reversed = True

# Sketch on XY plane
sketch21 = body.newObject("Sketcher::SketchObject", "Sketch020")
sketch21.AttachmentSupport = (doc.getObject("XY_Plane"), [""])
sketch21.MapMode = "FlatFace"
sketch21.AttachmentOffset = App.Placement(Vector(0, 0, -15), App.Rotation())
sketch21.addGeometry(Part.Circle(Vector(0, -15, 0), Vector(0, 0, 1), 2), False)
sketch21.addConstraint([
    Sketcher.Constraint("PointOnObject", 0, 3, -2),
    Sketcher.Constraint("Diameter", 0, Q("4 mm")),
    Sketcher.Constraint("DistanceY", 0, 3, -1, 1, Q("15 mm")),
])
sketch21.setExpression("Constraints[1]", "Params.sketch21_diameter")
pocket11 = body.newObject("PartDesign::Pocket", "Pocket010")
pocket11.Profile = sketch21
pocket11.setExpression("Length", "Params.pocket11_length")
pocket11.Reversed = True

# Sketch on XZ plane
sketch22 = body.newObject("Sketcher::SketchObject", "Sketch021")
sketch22.AttachmentSupport = (doc.getObject("XZ_Plane"), [""])
sketch22.MapMode = "FlatFace"
sketch22.AttachmentOffset = App.Placement(Vector(0, 0, 30), App.Rotation())
sketch22.addGeometry([
    Part.LineSegment(Vector(16, -20, 0), Vector(16, 20, 0)),
    Part.LineSegment(Vector(16, 20, 0), Vector(-18, 20, 0)),
    Part.LineSegment(Vector(-18, 20, 0), Vector(-18, -20, 0)),
    Part.LineSegment(Vector(-18, -20, 0), Vector(16, -20, 0)),
], False)
sketch22.addConstraint([
    Sketcher.Constraint("Coincident", 0, 2, 1, 1),
    Sketcher.Constraint("Coincident", 1, 2, 2, 1),
    Sketcher.Constraint("Coincident", 2, 2, 3, 1),
    Sketcher.Constraint("Coincident", 3, 2, 0, 1),
    Sketcher.Constraint("Vertical", 0),
    Sketcher.Constraint("Horizontal", 1),
    Sketcher.Constraint("Vertical", 2),
    Sketcher.Constraint("Horizontal", 3),
    Sketcher.Constraint("DistanceX", 1, 2, 1, 1, Q("34.498037 mm")),
    Sketcher.Constraint("DistanceY", 0, 1, 0, 2, Q("39.991384 mm")),
    Sketcher.Constraint("DistanceX", -1, 1, 0, 2, Q("16.30827 mm")),
    Sketcher.Constraint("DistanceY", -1, 1, 0, 2, Q("20.237932 mm")),
])
pocket12 = body.newObject("PartDesign::Pocket", "Pocket011")
pocket12.Profile = sketch22
pocket12.setExpression("Length", "Params.pocket12_length")

doc.recompute()
